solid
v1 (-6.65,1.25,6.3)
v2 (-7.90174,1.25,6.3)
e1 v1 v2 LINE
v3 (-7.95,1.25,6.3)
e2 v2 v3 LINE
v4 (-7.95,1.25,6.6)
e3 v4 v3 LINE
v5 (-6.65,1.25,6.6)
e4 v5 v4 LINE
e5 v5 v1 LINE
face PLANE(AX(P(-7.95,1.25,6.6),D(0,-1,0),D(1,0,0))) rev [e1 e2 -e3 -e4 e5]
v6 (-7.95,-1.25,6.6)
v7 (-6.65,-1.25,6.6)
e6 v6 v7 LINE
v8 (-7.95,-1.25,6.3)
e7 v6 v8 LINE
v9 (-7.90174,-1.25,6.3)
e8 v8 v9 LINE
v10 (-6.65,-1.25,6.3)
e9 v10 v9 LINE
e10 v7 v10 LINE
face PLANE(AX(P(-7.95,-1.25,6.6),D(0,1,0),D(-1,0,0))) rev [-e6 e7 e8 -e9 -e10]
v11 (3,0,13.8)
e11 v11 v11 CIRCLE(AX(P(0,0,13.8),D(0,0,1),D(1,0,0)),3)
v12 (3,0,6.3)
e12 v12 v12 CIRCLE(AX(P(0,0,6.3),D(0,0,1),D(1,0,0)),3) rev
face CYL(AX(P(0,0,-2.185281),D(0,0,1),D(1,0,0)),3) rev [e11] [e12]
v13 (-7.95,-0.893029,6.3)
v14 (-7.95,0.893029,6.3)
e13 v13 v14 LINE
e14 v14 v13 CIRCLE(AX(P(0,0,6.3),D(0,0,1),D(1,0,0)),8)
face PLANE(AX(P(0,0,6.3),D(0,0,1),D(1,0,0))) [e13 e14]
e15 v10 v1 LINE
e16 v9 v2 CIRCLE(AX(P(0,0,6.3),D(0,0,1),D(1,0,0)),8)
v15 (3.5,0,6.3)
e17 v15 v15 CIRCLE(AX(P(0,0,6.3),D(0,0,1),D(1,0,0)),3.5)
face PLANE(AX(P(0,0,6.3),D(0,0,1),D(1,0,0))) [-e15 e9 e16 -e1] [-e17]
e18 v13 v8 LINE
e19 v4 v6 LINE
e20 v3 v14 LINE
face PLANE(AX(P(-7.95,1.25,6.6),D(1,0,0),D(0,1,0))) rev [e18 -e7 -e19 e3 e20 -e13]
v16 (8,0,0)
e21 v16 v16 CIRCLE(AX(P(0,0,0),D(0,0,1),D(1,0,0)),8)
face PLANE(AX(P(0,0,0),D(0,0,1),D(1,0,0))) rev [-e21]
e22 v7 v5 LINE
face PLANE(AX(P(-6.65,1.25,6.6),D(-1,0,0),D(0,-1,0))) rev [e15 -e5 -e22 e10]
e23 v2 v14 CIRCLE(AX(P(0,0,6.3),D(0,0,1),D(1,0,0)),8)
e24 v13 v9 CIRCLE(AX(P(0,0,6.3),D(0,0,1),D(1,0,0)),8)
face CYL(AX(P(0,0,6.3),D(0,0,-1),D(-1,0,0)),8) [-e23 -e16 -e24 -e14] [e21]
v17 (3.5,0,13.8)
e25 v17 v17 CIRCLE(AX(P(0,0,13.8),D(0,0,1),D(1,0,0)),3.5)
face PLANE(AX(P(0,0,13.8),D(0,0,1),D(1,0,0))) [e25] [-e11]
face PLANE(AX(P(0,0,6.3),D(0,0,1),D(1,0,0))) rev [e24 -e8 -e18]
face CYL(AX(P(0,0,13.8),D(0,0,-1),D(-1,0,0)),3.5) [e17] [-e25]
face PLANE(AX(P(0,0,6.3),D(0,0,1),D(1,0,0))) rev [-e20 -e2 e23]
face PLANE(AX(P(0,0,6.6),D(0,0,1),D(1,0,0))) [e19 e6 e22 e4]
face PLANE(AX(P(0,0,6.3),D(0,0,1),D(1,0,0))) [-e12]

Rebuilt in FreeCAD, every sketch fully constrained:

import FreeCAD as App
import Part
import Sketcher

doc = App.newDocument("Part")
body = doc.addObject("PartDesign::Body", "Body")

# Sketch on XY plane
sketch1 = doc.addObject("Sketcher::SketchObject", "Sketch")
body.addObject(sketch1)
sketch1.AttachmentSupport = (doc.XY_Plane, [""])
sketch1.MapMode = "FlatFace"
sketch1.addGeometry(Part.Circle(App.Vector(0, 0, 0), App.Vector(0, 0, 1), 8), False)
sketch1.addConstraint([
    Sketcher.Constraint("Coincident", 0, 3, -1, 1),
    Sketcher.Constraint("Diameter", 0, 16.0),
])
pad1 = doc.addObject("PartDesign::Pad", "Pad")
body.addObject(pad1)
pad1.Profile = sketch1
pad1.Length = 6.3

# Sketch on XY plane
sketch2 = doc.addObject("Sketcher::SketchObject", "Sketch001")
body.addObject(sketch2)
sketch2.AttachmentSupport = (doc.XY_Plane, [""])
sketch2.MapMode = "FlatFace"
sketch2.AttachmentOffset = App.Placement(App.Vector(0, 0, 6.3), App.Rotation())
sketch2.addGeometry(Part.Circle(App.Vector(0, 0, 0), App.Vector(0, 0, 1), 3.5), False)
sketch2.addConstraint([
    Sketcher.Constraint("Coincident", 0, 3, -1, 1),
    Sketcher.Constraint("Diameter", 0, 7.0),
])
pad2 = doc.addObject("PartDesign::Pad", "Pad001")
body.addObject(pad2)
pad2.Profile = sketch2
pad2.Length = 7.5

# Sketch on XY plane
sketch3 = doc.addObject("Sketcher::SketchObject", "Sketch002")
body.addObject(sketch3)
sketch3.AttachmentSupport = (doc.XY_Plane, [""])
sketch3.MapMode = "FlatFace"
sketch3.AttachmentOffset = App.Placement(App.Vector(0, 0, 13.8), App.Rotation())
sketch3.addGeometry(Part.Circle(App.Vector(0, 0, 0), App.Vector(0, 0, 1), 3), False)
sketch3.addConstraint([
    Sketcher.Constraint("Coincident", 0, 3, -1, 1),
    Sketcher.Constraint("Diameter", 0, 6.0),
])
pocket1 = doc.addObject("PartDesign::Pocket", "Pocket")
body.addObject(pocket1)
pocket1.Profile = sketch3
pocket1.Length = 7.5

# Sketch on XY plane
sketch4 = doc.addObject("Sketcher::SketchObject", "Sketch003")
body.addObject(sketch4)
sketch4.AttachmentSupport = (doc.XY_Plane, [""])
sketch4.MapMode = "FlatFace"
sketch4.AttachmentOffset = App.Placement(App.Vector(0, 0, 6.3), App.Rotation())
sketch4.addGeometry([
    Part.LineSegment(App.Vector(-7.95, 1.25, 0), App.Vector(-7.95, -1.25, 0)),
    Part.LineSegment(App.Vector(-7.95, -1.25, 0), App.Vector(-6.65, -1.25, 0)),
    Part.LineSegment(App.Vector(-6.65, -1.25, 0), App.Vector(-6.65, 1.25, 0)),
    Part.LineSegment(App.Vector(-6.65, 1.25, 0), App.Vector(-7.95, 1.25, 0)),
], False)
sketch4.addConstraint([
    Sketcher.Constraint("Coincident", 0, 2, 1, 1),
    Sketcher.Constraint("Coincident", 1, 2, 2, 1),
    Sketcher.Constraint("Coincident", 2, 2, 3, 1),
    Sketcher.Constraint("Coincident", 3, 2, 0, 1),
    Sketcher.Constraint("Vertical", 0),
    Sketcher.Constraint("Horizontal", 1),
    Sketcher.Constraint("Vertical", 2),
    Sketcher.Constraint("Horizontal", 3),
    Sketcher.Constraint("DistanceX", 1, 1, 1, 2, 1.3),
    Sketcher.Constraint("DistanceY", 0, 2, 0, 1, 2.5),
    Sketcher.Constraint("DistanceX", 0, 2, -1, 1, 7.95),
    Sketcher.Constraint("DistanceY", 0, 2, -1, 1, 1.25),
])
pad3 = doc.addObject("PartDesign::Pad", "Pad002")
body.addObject(pad3)
pad3.Profile = sketch4
pad3.Length = 0.3

doc.recompute()
